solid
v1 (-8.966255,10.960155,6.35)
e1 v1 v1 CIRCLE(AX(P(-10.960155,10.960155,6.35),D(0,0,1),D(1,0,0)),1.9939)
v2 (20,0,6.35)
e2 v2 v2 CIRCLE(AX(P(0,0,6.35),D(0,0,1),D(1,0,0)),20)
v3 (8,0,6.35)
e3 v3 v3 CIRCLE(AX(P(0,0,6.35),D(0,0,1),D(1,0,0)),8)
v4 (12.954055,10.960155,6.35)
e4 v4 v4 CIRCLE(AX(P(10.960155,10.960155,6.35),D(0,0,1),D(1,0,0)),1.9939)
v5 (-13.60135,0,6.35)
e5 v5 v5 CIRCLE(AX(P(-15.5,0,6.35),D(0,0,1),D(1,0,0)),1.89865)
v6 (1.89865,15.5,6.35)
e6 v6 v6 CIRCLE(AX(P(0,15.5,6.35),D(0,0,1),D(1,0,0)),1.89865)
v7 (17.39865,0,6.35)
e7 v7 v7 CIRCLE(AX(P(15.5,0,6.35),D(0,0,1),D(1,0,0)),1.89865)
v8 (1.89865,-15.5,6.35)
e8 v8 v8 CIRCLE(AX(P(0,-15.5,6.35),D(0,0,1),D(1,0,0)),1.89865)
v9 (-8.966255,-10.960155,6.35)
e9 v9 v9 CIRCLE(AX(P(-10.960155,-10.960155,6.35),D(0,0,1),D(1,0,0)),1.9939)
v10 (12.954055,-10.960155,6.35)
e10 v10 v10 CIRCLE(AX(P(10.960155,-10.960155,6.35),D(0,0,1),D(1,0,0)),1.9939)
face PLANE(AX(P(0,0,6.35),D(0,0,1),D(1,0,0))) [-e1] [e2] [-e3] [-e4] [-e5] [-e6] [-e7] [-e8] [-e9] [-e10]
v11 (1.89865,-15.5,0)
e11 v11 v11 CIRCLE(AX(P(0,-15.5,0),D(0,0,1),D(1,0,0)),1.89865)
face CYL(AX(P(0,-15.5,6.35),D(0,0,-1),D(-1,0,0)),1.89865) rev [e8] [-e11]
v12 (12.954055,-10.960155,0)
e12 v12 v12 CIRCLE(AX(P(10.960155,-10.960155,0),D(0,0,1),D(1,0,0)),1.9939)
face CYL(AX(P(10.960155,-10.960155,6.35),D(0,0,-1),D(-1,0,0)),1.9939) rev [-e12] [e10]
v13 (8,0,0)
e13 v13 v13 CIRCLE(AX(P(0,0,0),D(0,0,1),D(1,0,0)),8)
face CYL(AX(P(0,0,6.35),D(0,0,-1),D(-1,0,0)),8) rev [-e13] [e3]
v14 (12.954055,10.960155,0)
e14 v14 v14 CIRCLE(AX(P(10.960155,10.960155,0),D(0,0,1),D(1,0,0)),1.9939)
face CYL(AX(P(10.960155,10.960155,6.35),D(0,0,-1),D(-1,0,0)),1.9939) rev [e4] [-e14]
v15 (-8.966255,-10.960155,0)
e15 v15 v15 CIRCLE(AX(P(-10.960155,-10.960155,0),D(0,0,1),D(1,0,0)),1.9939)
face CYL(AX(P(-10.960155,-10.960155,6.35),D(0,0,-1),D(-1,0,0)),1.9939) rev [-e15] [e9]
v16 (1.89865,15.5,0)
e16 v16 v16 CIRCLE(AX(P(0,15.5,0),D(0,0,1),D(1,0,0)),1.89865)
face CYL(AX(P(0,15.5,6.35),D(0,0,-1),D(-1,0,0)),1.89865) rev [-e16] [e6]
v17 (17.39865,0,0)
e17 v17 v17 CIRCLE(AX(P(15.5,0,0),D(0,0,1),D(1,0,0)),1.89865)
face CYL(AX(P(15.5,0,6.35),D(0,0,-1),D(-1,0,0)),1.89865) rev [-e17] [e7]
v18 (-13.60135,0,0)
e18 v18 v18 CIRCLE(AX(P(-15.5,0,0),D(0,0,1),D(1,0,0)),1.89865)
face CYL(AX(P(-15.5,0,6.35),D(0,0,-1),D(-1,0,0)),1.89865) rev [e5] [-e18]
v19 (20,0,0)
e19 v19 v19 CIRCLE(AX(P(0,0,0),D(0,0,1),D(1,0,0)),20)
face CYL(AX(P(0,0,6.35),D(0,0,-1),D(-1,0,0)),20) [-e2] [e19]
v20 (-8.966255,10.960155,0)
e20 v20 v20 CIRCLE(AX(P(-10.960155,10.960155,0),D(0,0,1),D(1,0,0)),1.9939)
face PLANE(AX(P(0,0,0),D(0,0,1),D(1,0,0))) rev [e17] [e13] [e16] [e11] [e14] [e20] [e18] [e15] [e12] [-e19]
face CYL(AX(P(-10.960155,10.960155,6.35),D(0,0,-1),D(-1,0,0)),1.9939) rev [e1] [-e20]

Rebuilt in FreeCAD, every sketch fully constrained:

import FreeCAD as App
import Part
import Sketcher
Q = App.Units.Quantity

doc = App.newDocument("Part")
params = doc.addObject("Spreadsheet::Sheet", "Params")
for row, (alias, value) in enumerate([
    ("sketch1_diameter", "40 mm"),
    ("sketch1_diameter2", "16 mm"),
    ("pad1_length", "6.35 mm"),
], start=1):
    params.set(f"A{row}", alias)
    params.set(f"B{row}", "=" + value)
    params.setAlias(f"B{row}", alias)

body = doc.addObject("PartDesign::Body", "Body")

# Sketch on XY plane
sketch1 = doc.addObject("Sketcher::SketchObject", "Sketch")
body.addObject(sketch1)
sketch1.AttachmentSupport = (doc.XY_Plane, [""])
sketch1.MapMode = "FlatFace"
sketch1.addGeometry([
    Part.Circle(App.Vector(0, 0, 0), App.Vector(0, 0, 1), 20),  # 0
    Part.Circle(App.Vector(-11, -11, 0), App.Vector(0, 0, 1), 2),  # 1
    Part.Circle(App.Vector(0, -15.5, 0), App.Vector(0, 0, 1), 1.9),  # 2
    Part.Circle(App.Vector(11, -11, 0), App.Vector(0, 0, 1), 2),  # 3
    Part.Circle(App.Vector(-15.5, 0, 0), App.Vector(0, 0, 1), 1.9),  # 4
    Part.Circle(App.Vector(0, 0, 0), App.Vector(0, 0, 1), 8),  # 5
    Part.Circle(App.Vector(-11, 11, 0), App.Vector(0, 0, 1), 2),  # 6
    Part.Circle(App.Vector(0, 15.5, 0), App.Vector(0, 0, 1), 1.9),  # 7
    Part.Circle(App.Vector(15.5, 0, 0), App.Vector(0, 0, 1), 1.9),  # 8
    Part.Circle(App.Vector(11, 11, 0), App.Vector(0, 0, 1), 2),  # 9
], False)
sketch1.addConstraint([
    Sketcher.Constraint("Coincident", 0, 3, -1, 1),
    Sketcher.Constraint("Coincident", 5, 3, -1, 1),
    Sketcher.Constraint("Equal", 1, 3),
    Sketcher.Constraint("Equal", 2, 4),
    Sketcher.Constraint("Equal", 3, 6),
    Sketcher.Constraint("Equal", 4, 7),
    Sketcher.Constraint("Equal", 7, 8),
    Sketcher.Constraint("Equal", 6, 9),
    Sketcher.Constraint("Symmetric", 3, 3, 6, 3, -1, 1),
    Sketcher.Constraint("Symmetric", 2, 3, 7, 3, -1, 1),
    Sketcher.Constraint("Symmetric", 4, 3, 8, 3, -1, 1),
    Sketcher.Constraint("Symmetric", 1, 3, 9, 3, -1, 1),
    Sketcher.Constraint("Symmetric", 1, 3, 3, 3, -2),
    Sketcher.Constraint("PointOnObject", 2, 3, -2),
    Sketcher.Constraint("PointOnObject", 4, 3, -1),
    Sketcher.Constraint("Diameter", 0, Q("40 mm")),
    Sketcher.Constraint("Diameter", 5, Q("16 mm")),
    Sketcher.Constraint("Diameter", 1, Q("3.9878 mm")),
    Sketcher.Constraint("Diameter", 2, Q("3.7973 mm")),
    Sketcher.Constraint("DistanceY", 2, 3, -1, 1, Q("15.5 mm")),
    Sketcher.Constraint("DistanceX", 4, 3, -1, 1, Q("15.5 mm")),
    Sketcher.Constraint("DistanceX", 1, 3, 3, 3, Q("21.92031 mm")),
    Sketcher.Constraint("DistanceY", 1, 3, 6, 3, Q("21.92031 mm")),
])
sketch1.setExpression("Constraints[15]", "Params.sketch1_diameter")
sketch1.setExpression("Constraints[16]", "Params.sketch1_diameter2")
pad1 = doc.addObject("PartDesign::Pad", "Pad")
body.addObject(pad1)
pad1.Profile = sketch1
pad1.setExpression("Length", "Params.pad1_length")

doc.recompute()
